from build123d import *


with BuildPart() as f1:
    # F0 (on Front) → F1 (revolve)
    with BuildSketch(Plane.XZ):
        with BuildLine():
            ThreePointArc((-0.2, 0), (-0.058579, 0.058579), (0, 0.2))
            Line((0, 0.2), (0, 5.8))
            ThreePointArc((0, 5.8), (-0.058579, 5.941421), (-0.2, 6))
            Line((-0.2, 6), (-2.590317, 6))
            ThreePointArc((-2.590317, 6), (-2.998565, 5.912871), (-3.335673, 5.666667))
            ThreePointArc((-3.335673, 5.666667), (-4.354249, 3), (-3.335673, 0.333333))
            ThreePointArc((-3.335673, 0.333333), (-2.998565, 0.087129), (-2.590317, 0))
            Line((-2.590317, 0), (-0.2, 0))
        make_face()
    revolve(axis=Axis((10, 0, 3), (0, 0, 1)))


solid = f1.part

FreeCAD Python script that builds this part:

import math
import FreeCAD as App
import Part
import Sketcher
from FreeCAD import Vector
Q = App.Units.Quantity

doc = App.newDocument("Part")
body = doc.addObject("PartDesign::Body", "Body")

# Sketch on XZ plane
sketch1 = doc.addObject("Sketcher::SketchObject", "Sketch")
body.addObject(sketch1)
sketch1.AttachmentSupport = (doc.XZ_Plane, [""])
sketch1.MapMode = "FlatFace"
sketch1.addGeometry([
    Part.ArcOfCircle(Part.Circle(Vector(-0.2, 0.2, 0), Vector(0, 0, 1), 0.2), math.radians(-90), math.radians(0)),  # 0
    Part.LineSegment(Vector(0, 0.2, 0), Vector(0, 5.8, 0)),  # 1
    Part.ArcOfCircle(Part.Circle(Vector(-0.2, 5.8, 0), Vector(0, 0, 1), 0.2), math.radians(0), math.radians(90)),  # 2
    Part.LineSegment(Vector(-0.2, 6, 0), Vector(-2.59, 6, 0)),  # 3
    Part.ArcOfCircle(Part.Circle(Vector(-2.59, 5, 0), Vector(0, 0, 1), 1), math.radians(90), math.radians(138)),  # 4
    Part.ArcOfCircle(Part.Circle(Vector(-0.35, 3, 0), Vector(0, 0, 1), 4), math.radians(138), math.radians(222)),  # 5
    Part.ArcOfCircle(Part.Circle(Vector(-2.59, 1, 0), Vector(0, 0, 1), 1), math.radians(-138), math.radians(-90)),  # 6
    Part.LineSegment(Vector(-2.59, 0, 0), Vector(-0.2, 0, 0)),  # 7
], False)
sketch1.addGeometry(Part.LineSegment(Vector(10, 0, 0), Vector(10, 6, 0)), True)  # axis
sketch1.addConstraint([
    Sketcher.Constraint("Coincident", 0, 2, 1, 1),
    Sketcher.Constraint("Coincident", 1, 2, 2, 1),
    Sketcher.Constraint("Coincident", 2, 2, 3, 1),
    Sketcher.Constraint("Tangent", 3, 2, 4, 1),
    Sketcher.Constraint("Tangent", 4, 2, 5, 1),
    Sketcher.Constraint("Tangent", 5, 2, 6, 1),
    Sketcher.Constraint("Tangent", 6, 2, 7, 1),
    Sketcher.Constraint("Coincident", 7, 2, 0, 1),
    Sketcher.Constraint("Vertical", 1),
    Sketcher.Constraint("Horizontal", 3),
    Sketcher.Constraint("Horizontal", 7),
    Sketcher.Constraint("Vertical", 8),
    Sketcher.Constraint("Equal", 0, 2),
    Sketcher.Constraint("Equal", 4, 6),
    Sketcher.Constraint("PointOnObject", 0, 2, -2),
    Sketcher.Constraint("PointOnObject", 6, 2, -1),
    Sketcher.Constraint("PointOnObject", 8, 1, -1),
    Sketcher.Constraint("Horizontal", 2, 3, 1, 2),
    Sketcher.Constraint("Horizontal", 3, 2, 8, 2),
    Sketcher.Constraint("Vertical", 4, 3, 6, 3),
    Sketcher.Constraint("Vertical", 0, 3, 2, 2),
    Sketcher.Constraint("Vertical", 2, 2, 7, 2),
    Sketcher.Constraint("Radius", 4, Q("1.000002 mm")),
    Sketcher.Constraint("Radius", 5, Q("4.000001 mm")),
    Sketcher.Constraint("Radius", 0, Q("0.200001 mm")),
    Sketcher.Constraint("DistanceY", 8, 1, 8, 2, Q("6 mm")),
    Sketcher.Constraint("DistanceY", 1, 1, 1, 2, Q("5.6 mm")),
    Sketcher.Constraint("DistanceX", -1, 1, 8, 1, Q("10 mm")),
    Sketcher.Constraint("DistanceX", 3, 2, 3, 1, Q("2.390317 mm")),
])
revolution = doc.addObject("PartDesign::Revolution", "Revolution")
body.addObject(revolution)
revolution.Profile = sketch1
revolution.ReferenceAxis = (sketch1, ["Axis0"])
revolution.Angle = 360

doc.recompute()
